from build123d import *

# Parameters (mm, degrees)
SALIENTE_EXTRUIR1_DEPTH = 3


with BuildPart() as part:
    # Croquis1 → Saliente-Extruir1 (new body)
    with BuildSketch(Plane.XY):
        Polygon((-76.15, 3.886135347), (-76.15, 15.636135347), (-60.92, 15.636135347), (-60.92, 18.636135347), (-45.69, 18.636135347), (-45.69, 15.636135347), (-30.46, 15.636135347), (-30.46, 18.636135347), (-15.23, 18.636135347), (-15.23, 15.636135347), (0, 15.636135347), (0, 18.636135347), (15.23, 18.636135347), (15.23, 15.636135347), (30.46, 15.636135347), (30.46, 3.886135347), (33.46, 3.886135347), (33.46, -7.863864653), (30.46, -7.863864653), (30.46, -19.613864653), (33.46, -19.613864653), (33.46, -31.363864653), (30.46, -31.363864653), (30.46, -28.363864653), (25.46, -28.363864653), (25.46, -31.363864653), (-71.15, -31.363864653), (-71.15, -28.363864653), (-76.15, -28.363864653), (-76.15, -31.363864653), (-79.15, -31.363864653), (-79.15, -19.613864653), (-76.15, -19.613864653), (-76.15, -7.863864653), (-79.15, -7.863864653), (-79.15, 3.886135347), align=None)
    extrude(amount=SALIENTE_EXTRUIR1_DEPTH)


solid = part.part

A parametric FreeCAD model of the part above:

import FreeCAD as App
import Part
import Sketcher
from FreeCAD import Vector
Q = App.Units.Quantity


def add_polygon(sketch, points):
    """Adds a closed chain of lines whose ends are joined by coincident constraints."""
    first, n = sketch.GeometryCount, len(points)
    for a, b in zip(points, points[1:] + points[:1]):
        sketch.addGeometry(Part.LineSegment(App.Vector(*a, 0), App.Vector(*b, 0)), False)
    for i in range(n):
        sketch.addConstraint(Sketcher.Constraint("Coincident", first + i, 2, first + (i + 1) % n, 1))

doc = App.newDocument("Part")
body = doc.addObject("PartDesign::Body", "Body")

# Sketch on XY plane
sketch1 = body.newObject("Sketcher::SketchObject", "Sketch")
sketch1.AttachmentSupport = (doc.getObject("XY_Plane"), [""])
sketch1.MapMode = "FlatFace"
add_polygon(sketch1, [(-76.2, 15.6), (-76.2, 3.9), (-79.2, 3.9), (-79.2, -7.9), (-76.2, -7.9), (-76.2, -19.6), (-79.2, -19.6), (-79.2, -31.4), (-76.2, -31.4), (-76.2, -28.4), (-71.2, -28.4), (-71.2, -31.4), (25.5, -31.4), (25.5, -28.4), (30.5, -28.4), (30.5, -31.4), (33.5, -31.4), (33.5, -19.6), (30.5, -19.6), (30.5, -7.9), (33.5, -7.9), (33.5, 3.9), (30.5, 3.9), (30.5, 15.6), (15.2, 15.6), (15.2, 18.6), (0, 18.6), (0, 15.6), (-15.2, 15.6), (-15.2, 18.6), (-30.5, 18.6), (-30.5, 15.6), (-45.7, 15.6), (-45.7, 18.6), (-60.9, 18.6), (-60.9, 15.6)])  # lines 0-35
sketch1.addConstraint([
    Sketcher.Constraint("Vertical", 0),
    Sketcher.Constraint("Horizontal", 1),
    Sketcher.Constraint("Vertical", 2),
    Sketcher.Constraint("Horizontal", 3),
    Sketcher.Constraint("Vertical", 4),
    Sketcher.Constraint("Horizontal", 5),
    Sketcher.Constraint("Vertical", 6),
    Sketcher.Constraint("Horizontal", 7),
    Sketcher.Constraint("Vertical", 8),
    Sketcher.Constraint("Horizontal", 9),
    Sketcher.Constraint("Vertical", 10),
    Sketcher.Constraint("Horizontal", 11),
    Sketcher.Constraint("Vertical", 12),
    Sketcher.Constraint("Horizontal", 13),
    Sketcher.Constraint("Vertical", 14),
    Sketcher.Constraint("Horizontal", 15),
    Sketcher.Constraint("Vertical", 16),
    Sketcher.Constraint("Horizontal", 17),
    Sketcher.Constraint("Vertical", 18),
    Sketcher.Constraint("Horizontal", 19),
    Sketcher.Constraint("Vertical", 20),
    Sketcher.Constraint("Horizontal", 21),
    Sketcher.Constraint("Vertical", 22),
    Sketcher.Constraint("Horizontal", 23),
    Sketcher.Constraint("Vertical", 24),
    Sketcher.Constraint("Horizontal", 25),
    Sketcher.Constraint("Vertical", 26),
    Sketcher.Constraint("Horizontal", 27),
    Sketcher.Constraint("Vertical", 28),
    Sketcher.Constraint("Horizontal", 29),
    Sketcher.Constraint("Vertical", 30),
    Sketcher.Constraint("Horizontal", 31),
    Sketcher.Constraint("Vertical", 32),
    Sketcher.Constraint("Horizontal", 33),
    Sketcher.Constraint("Vertical", 34),
    Sketcher.Constraint("Horizontal", 35),
    Sketcher.Constraint("Symmetric", 23, 2, 27, 2, -2),
    Sketcher.Constraint("Symmetric", 22, 2, 30, 2, -2),
    Sketcher.Constraint("PointOnObject", 25, 2, -2),
    Sketcher.Constraint("Horizontal", 7, 2, 10, 2),
    Sketcher.Constraint("Horizontal", 9, 2, 12, 2),
    Sketcher.Constraint("Horizontal", 11, 2, 14, 2),
    Sketcher.Constraint("Horizontal", 5, 2, 16, 2),
    Sketcher.Constraint("Horizontal", 3, 2, 18, 2),
    Sketcher.Constraint("Horizontal", 1, 2, 20, 2),
    Sketcher.Constraint("Horizontal", 25, 2, 28, 2),
    Sketcher.Constraint("Horizontal", 29, 2, 32, 2),
    Sketcher.Constraint("Horizontal", 31, 2, 34, 2),
    Sketcher.Constraint("Vertical", 0, 2, 3, 2),
    Sketcher.Constraint("Vertical", 2, 2, 5, 2),
    Sketcher.Constraint("Vertical", 4, 2, 7, 2),
    Sketcher.Constraint("Vertical", 14, 2, 17, 2),
    Sketcher.Constraint("Vertical", 16, 2, 19, 2),
    Sketcher.Constraint("Vertical", 18, 2, 21, 2),
    Sketcher.Constraint("Equal", 9, 13),
    Sketcher.Constraint("Equal", 7, 15),
    Sketcher.Constraint("Equal", 23, 25),
    Sketcher.Constraint("Equal", 29, 31),
    Sketcher.Constraint("Equal", 31, 33),
    Sketcher.Constraint("Equal", 33, 35),
    Sketcher.Constraint("Equal", 0, 2),
    Sketcher.Constraint("Equal", 2, 4),
    Sketcher.Constraint("Equal", 4, 6),
    Sketcher.Constraint("Equal", 21, 8),
    Sketcher.Constraint("Equal", 14, 24),
    Sketcher.Constraint("DistanceX", 1, 2, 1, 1, Q("3 mm")),
    Sketcher.Constraint("DistanceX", 9, 1, 9, 2, Q("5 mm")),
    Sketcher.Constraint("DistanceX", 11, 1, 11, 2, Q("96.61 mm")),
    Sketcher.Constraint("DistanceY", 0, 2, 0, 1, Q("11.75 mm")),
    Sketcher.Constraint("DistanceY", -1, 1, 0, 2, Q("3.886135 mm")),
])
pad1 = body.newObject("PartDesign::Pad", "Pad")
pad1.Profile = sketch1
pad1.Length = 3

doc.recompute()
